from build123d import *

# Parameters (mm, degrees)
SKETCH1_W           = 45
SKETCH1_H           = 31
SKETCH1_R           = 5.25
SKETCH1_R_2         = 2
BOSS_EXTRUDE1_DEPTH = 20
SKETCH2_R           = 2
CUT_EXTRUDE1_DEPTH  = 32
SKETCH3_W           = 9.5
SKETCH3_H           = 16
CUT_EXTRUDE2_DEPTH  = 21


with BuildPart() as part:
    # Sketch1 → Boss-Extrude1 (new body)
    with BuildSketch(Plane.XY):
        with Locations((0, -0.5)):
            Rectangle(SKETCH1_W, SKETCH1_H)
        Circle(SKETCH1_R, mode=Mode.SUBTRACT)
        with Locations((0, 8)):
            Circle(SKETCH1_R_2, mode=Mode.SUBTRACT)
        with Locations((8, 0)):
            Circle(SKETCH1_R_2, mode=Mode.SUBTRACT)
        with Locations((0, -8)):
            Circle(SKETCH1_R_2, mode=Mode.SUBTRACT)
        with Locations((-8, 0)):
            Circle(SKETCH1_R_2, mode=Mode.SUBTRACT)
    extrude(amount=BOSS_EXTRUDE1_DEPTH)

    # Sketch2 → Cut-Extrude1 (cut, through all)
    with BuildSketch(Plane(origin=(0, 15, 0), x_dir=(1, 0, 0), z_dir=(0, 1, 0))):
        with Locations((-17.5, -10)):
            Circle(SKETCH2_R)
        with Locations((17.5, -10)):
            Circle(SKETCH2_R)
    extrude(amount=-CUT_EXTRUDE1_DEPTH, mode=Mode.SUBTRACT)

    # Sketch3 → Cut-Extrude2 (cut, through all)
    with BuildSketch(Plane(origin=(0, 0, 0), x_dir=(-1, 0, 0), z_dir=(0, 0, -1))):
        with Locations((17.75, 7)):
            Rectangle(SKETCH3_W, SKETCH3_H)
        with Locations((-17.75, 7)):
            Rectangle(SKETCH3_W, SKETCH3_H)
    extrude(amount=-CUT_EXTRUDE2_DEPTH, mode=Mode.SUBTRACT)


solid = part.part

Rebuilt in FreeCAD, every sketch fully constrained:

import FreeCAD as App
import Part
import Sketcher
Q = App.Units.Quantity


def add_polygon(sketch, points):
    """Adds a closed chain of lines whose ends are joined by coincident constraints."""
    first, n = sketch.GeometryCount, len(points)
    for a, b in zip(points, points[1:] + points[:1]):
        sketch.addGeometry(Part.LineSegment(App.Vector(*a, 0), App.Vector(*b, 0)), False)
    for i in range(n):
        sketch.addConstraint(Sketcher.Constraint("Coincident", first + i, 2, first + (i + 1) % n, 1))

doc = App.newDocument("Part")
params = doc.addObject("Spreadsheet::Sheet", "Params")
for row, (alias, value) in enumerate([
    ("sketch1_diameter", "4 mm"),
    ("sketch1_diameter2", "10.5 mm"),
    ("sketch1_width", "45 mm"),
    ("sketch1_height", "31 mm"),
    ("pad1_length", "20 mm"),
    ("sketch2_diameter", "4 mm"),
    ("sketch3_height", "16 mm"),
    ("sketch3_width", "9.5 mm"),
], start=1):
    params.set(f"A{row}", alias)
    params.set(f"B{row}", "=" + value)
    params.setAlias(f"B{row}", alias)

body = doc.addObject("PartDesign::Body", "Body")

sketch1 = body.newObject("Sketcher::SketchObject", "Sketch")
sketch1.AttachmentSupport = (doc.getObject("XY_Plane"), [""])
sketch1.MapMode = "FlatFace"
add_polygon(sketch1, [(-22.5, 15), (-22.5, -16), (22.5, -16), (22.5, 15)])
sketch1.addGeometry(Part.Circle(App.Vector(0, -8, 0), App.Vector(0, 0, 1), 2), False)
sketch1.addGeometry(Part.Circle(App.Vector(-8, 0, 0), App.Vector(0, 0, 1), 2), False)
sketch1.addGeometry(Part.Circle(App.Vector(0, 0, 0), App.Vector(0, 0, 1), 5.2), False)
sketch1.addGeometry(Part.Circle(App.Vector(8, 0, 0), App.Vector(0, 0, 1), 2), False)
sketch1.addGeometry(Part.Circle(App.Vector(0, 8, 0), App.Vector(0, 0, 1), 2), False)
sketch1.addConstraint(Sketcher.Constraint("Vertical", 0))
sketch1.addConstraint(Sketcher.Constraint("Horizontal", 1))
sketch1.addConstraint(Sketcher.Constraint("Vertical", 2))
sketch1.addConstraint(Sketcher.Constraint("Horizontal", 3))
sketch1.addConstraint(Sketcher.Constraint("Coincident", 6, 3, -1, 1))
sketch1.addConstraint(Sketcher.Constraint("Equal", 4, 5))
sketch1.addConstraint(Sketcher.Constraint("Equal", 5, 7))
sketch1.addConstraint(Sketcher.Constraint("Equal", 7, 8))
sketch1.addConstraint(Sketcher.Constraint("Symmetric", 5, 3, 7, 3, -1, 1))
sketch1.addConstraint(Sketcher.Constraint("Symmetric", 4, 3, 8, 3, -1, 1))
sketch1.addConstraint(Sketcher.Constraint("PointOnObject", 4, 3, -2))
sketch1.addConstraint(Sketcher.Constraint("PointOnObject", 5, 3, -1))
sketch1.addConstraint(Sketcher.Constraint("Diameter", 4, Q("4 mm")))
sketch1.addConstraint(Sketcher.Constraint("Diameter", 6, Q("10.5 mm")))
sketch1.addConstraint(Sketcher.Constraint("DistanceX", 1, 1, 1, 2, Q("45 mm")))
sketch1.addConstraint(Sketcher.Constraint("DistanceY", 0, 2, 0, 1, Q("31 mm")))
sketch1.addConstraint(Sketcher.Constraint("DistanceY", 4, 3, -1, 1, Q("8 mm")))
sketch1.addConstraint(Sketcher.Constraint("DistanceX", 5, 3, -1, 1, Q("8 mm")))
sketch1.addConstraint(Sketcher.Constraint("DistanceY", 0, 2, -1, 1, Q("16 mm")))
sketch1.addConstraint(Sketcher.Constraint("DistanceX", 0, 2, -1, 1, Q("22.5 mm")))
sketch1.setExpression("Constraints[16]", "Params.sketch1_diameter")
sketch1.setExpression("Constraints[17]", "Params.sketch1_diameter2")
sketch1.setExpression("Constraints[18]", "Params.sketch1_width")
sketch1.setExpression("Constraints[19]", "Params.sketch1_height")
pad1 = body.newObject("PartDesign::Pad", "Pad")
pad1.Profile = sketch1
pad1.setExpression("Length", "Params.pad1_length")

sketch2 = body.newObject("Sketcher::SketchObject", "Sketch001")
sketch2.AttachmentSupport = (doc.getObject("XZ_Plane"), [""])
sketch2.MapMode = "FlatFace"
sketch2.AttachmentOffset = App.Placement(App.Vector(0, 0, -15), App.Rotation())
sketch2.addGeometry(Part.Circle(App.Vector(-17.5, 10, 0), App.Vector(0, 0, 1), 2), False)
sketch2.addGeometry(Part.Circle(App.Vector(17.5, 10, 0), App.Vector(0, 0, 1), 2), False)
sketch2.addConstraint(Sketcher.Constraint("Equal", 0, 1))
sketch2.addConstraint(Sketcher.Constraint("Symmetric", 0, 3, 1, 3, -2))
sketch2.addConstraint(Sketcher.Constraint("Diameter", 0, Q("4 mm")))
sketch2.addConstraint(Sketcher.Constraint("DistanceY", -1, 1, 0, 3, Q("10 mm")))
sketch2.addConstraint(Sketcher.Constraint("DistanceX", 0, 3, 1, 3, Q("35 mm")))
sketch2.setExpression("Constraints[2]", "Params.sketch2_diameter")
pocket1 = body.newObject("PartDesign::Pocket", "Pocket")
pocket1.Profile = sketch2
pocket1.Type = "ThroughAll"
pocket1.Reversed = True

sketch3 = body.newObject("Sketcher::SketchObject", "Sketch002")
sketch3.AttachmentSupport = (doc.getObject("XY_Plane"), [""])
sketch3.MapMode = "FlatFace"
add_polygon(sketch3, [(-13, 15), (-13, -1), (-22, -1), (-22, 15)])
add_polygon(sketch3, [(22, 15), (22, -1), (13, -1), (13, 15)])
sketch3.addConstraint(Sketcher.Constraint("Vertical", 0))
sketch3.addConstraint(Sketcher.Constraint("Horizontal", 1))
sketch3.addConstraint(Sketcher.Constraint("Vertical", 2))
sketch3.addConstraint(Sketcher.Constraint("Horizontal", 3))
sketch3.addConstraint(Sketcher.Constraint("Vertical", 4))
sketch3.addConstraint(Sketcher.Constraint("Horizontal", 5))
sketch3.addConstraint(Sketcher.Constraint("Vertical", 6))
sketch3.addConstraint(Sketcher.Constraint("Horizontal", 7))
sketch3.addConstraint(Sketcher.Constraint("Symmetric", 1, 2, 4, 2, -2))
sketch3.addConstraint(Sketcher.Constraint("Symmetric", 3, 2, 6, 2, -2))
sketch3.addConstraint(Sketcher.Constraint("DistanceY", 0, 2, 0, 1, Q("16 mm")))
sketch3.addConstraint(Sketcher.Constraint("DistanceX", 1, 2, 1, 1, Q("9.5 mm")))
sketch3.addConstraint(Sketcher.Constraint("DistanceX", 0, 2, -1, 1, Q("13 mm")))
sketch3.addConstraint(Sketcher.Constraint("DistanceY", 0, 2, -1, 1, Q("1 mm")))
sketch3.setExpression("Constraints[18]", "Params.sketch3_height")
sketch3.setExpression("Constraints[19]", "Params.sketch3_width")
pocket2 = body.newObject("PartDesign::Pocket", "Pocket001")
pocket2.Profile = sketch3
pocket2.Type = "ThroughAll"
pocket2.Reversed = True

doc.recompute()
